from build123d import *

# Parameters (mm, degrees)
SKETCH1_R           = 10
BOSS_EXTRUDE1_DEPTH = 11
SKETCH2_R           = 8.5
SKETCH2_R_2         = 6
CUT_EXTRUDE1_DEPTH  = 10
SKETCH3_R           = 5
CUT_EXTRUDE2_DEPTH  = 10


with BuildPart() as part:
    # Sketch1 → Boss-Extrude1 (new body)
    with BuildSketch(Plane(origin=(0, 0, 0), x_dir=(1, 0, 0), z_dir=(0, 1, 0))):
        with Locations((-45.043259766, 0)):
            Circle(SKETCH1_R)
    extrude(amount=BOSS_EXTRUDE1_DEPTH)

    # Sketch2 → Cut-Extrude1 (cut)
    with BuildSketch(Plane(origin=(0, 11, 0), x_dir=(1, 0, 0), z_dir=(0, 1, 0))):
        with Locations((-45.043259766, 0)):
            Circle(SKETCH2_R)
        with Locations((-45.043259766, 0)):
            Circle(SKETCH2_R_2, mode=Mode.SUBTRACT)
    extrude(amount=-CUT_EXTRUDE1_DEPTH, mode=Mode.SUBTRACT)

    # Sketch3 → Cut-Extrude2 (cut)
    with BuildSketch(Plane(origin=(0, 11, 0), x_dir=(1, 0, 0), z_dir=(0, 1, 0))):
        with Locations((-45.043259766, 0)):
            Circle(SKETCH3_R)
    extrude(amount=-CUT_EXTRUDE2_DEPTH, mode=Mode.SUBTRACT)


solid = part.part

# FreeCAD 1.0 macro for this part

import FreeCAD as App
import Part
import Sketcher

V = App.Vector
Q = App.Units.Quantity

doc = App.newDocument("Part")
body = doc.addObject("PartDesign::Body", "Body")

# Sketch on XZ plane
sketch1 = body.newObject("Sketcher::SketchObject", "Sketch")
sketch1.AttachmentSupport = (doc.getObject("XZ_Plane"), [""])
sketch1.MapMode = "FlatFace"
sketch1.addGeometry(Part.Circle(V(-45, 0, 0), V(0, 0, 1), 10), False)
sketch1.addConstraint([
    Sketcher.Constraint("PointOnObject", 0, 3, -1),
    Sketcher.Constraint("Diameter", 0, Q("20 mm")),
    Sketcher.Constraint("DistanceX", 0, 3, -1, 1, Q("45.04326 mm")),
])
pad1 = body.newObject("PartDesign::Pad", "Pad")
pad1.Profile = sketch1
pad1.Length = 11
pad1.Reversed = True

# Sketch on XZ plane
sketch2 = body.newObject("Sketcher::SketchObject", "Sketch001")
sketch2.AttachmentSupport = (doc.getObject("XZ_Plane"), [""])
sketch2.MapMode = "FlatFace"
sketch2.AttachmentOffset = App.Placement(V(0, 0, -11), App.Rotation())
sketch2.addGeometry([
    Part.Circle(V(-45, 0, 0), V(0, 0, 1), 8),
    Part.Circle(V(-45, 0, 0), V(0, 0, 1), 6),
], False)
sketch2.addConstraint([
    Sketcher.Constraint("Coincident", 1, 3, 0, 3),
    Sketcher.Constraint("PointOnObject", 0, 3, -1),
    Sketcher.Constraint("Diameter", 0, Q("17 mm")),
    Sketcher.Constraint("Diameter", 1, Q("12 mm")),
    Sketcher.Constraint("DistanceX", 0, 3, -1, 1, Q("45.04326 mm")),
])
pocket1 = body.newObject("PartDesign::Pocket", "Pocket")
pocket1.Profile = sketch2
pocket1.Length = 10
pocket1.Reversed = True

# Sketch on XZ plane
sketch3 = body.newObject("Sketcher::SketchObject", "Sketch002")
sketch3.AttachmentSupport = (doc.getObject("XZ_Plane"), [""])
sketch3.MapMode = "FlatFace"
sketch3.AttachmentOffset = App.Placement(V(0, 0, -11), App.Rotation())
sketch3.addGeometry(Part.Circle(V(-45, 0, 0), V(0, 0, 1), 5), False)
sketch3.addConstraint([
    Sketcher.Constraint("PointOnObject", 0, 3, -1),
    Sketcher.Constraint("Diameter", 0, Q("10 mm")),
    Sketcher.Constraint("DistanceX", 0, 3, -1, 1, Q("45.04326 mm")),
])
pocket2 = body.newObject("PartDesign::Pocket", "Pocket001")
pocket2.Profile = sketch3
pocket2.Length = 10
pocket2.Reversed = True

doc.recompute()
